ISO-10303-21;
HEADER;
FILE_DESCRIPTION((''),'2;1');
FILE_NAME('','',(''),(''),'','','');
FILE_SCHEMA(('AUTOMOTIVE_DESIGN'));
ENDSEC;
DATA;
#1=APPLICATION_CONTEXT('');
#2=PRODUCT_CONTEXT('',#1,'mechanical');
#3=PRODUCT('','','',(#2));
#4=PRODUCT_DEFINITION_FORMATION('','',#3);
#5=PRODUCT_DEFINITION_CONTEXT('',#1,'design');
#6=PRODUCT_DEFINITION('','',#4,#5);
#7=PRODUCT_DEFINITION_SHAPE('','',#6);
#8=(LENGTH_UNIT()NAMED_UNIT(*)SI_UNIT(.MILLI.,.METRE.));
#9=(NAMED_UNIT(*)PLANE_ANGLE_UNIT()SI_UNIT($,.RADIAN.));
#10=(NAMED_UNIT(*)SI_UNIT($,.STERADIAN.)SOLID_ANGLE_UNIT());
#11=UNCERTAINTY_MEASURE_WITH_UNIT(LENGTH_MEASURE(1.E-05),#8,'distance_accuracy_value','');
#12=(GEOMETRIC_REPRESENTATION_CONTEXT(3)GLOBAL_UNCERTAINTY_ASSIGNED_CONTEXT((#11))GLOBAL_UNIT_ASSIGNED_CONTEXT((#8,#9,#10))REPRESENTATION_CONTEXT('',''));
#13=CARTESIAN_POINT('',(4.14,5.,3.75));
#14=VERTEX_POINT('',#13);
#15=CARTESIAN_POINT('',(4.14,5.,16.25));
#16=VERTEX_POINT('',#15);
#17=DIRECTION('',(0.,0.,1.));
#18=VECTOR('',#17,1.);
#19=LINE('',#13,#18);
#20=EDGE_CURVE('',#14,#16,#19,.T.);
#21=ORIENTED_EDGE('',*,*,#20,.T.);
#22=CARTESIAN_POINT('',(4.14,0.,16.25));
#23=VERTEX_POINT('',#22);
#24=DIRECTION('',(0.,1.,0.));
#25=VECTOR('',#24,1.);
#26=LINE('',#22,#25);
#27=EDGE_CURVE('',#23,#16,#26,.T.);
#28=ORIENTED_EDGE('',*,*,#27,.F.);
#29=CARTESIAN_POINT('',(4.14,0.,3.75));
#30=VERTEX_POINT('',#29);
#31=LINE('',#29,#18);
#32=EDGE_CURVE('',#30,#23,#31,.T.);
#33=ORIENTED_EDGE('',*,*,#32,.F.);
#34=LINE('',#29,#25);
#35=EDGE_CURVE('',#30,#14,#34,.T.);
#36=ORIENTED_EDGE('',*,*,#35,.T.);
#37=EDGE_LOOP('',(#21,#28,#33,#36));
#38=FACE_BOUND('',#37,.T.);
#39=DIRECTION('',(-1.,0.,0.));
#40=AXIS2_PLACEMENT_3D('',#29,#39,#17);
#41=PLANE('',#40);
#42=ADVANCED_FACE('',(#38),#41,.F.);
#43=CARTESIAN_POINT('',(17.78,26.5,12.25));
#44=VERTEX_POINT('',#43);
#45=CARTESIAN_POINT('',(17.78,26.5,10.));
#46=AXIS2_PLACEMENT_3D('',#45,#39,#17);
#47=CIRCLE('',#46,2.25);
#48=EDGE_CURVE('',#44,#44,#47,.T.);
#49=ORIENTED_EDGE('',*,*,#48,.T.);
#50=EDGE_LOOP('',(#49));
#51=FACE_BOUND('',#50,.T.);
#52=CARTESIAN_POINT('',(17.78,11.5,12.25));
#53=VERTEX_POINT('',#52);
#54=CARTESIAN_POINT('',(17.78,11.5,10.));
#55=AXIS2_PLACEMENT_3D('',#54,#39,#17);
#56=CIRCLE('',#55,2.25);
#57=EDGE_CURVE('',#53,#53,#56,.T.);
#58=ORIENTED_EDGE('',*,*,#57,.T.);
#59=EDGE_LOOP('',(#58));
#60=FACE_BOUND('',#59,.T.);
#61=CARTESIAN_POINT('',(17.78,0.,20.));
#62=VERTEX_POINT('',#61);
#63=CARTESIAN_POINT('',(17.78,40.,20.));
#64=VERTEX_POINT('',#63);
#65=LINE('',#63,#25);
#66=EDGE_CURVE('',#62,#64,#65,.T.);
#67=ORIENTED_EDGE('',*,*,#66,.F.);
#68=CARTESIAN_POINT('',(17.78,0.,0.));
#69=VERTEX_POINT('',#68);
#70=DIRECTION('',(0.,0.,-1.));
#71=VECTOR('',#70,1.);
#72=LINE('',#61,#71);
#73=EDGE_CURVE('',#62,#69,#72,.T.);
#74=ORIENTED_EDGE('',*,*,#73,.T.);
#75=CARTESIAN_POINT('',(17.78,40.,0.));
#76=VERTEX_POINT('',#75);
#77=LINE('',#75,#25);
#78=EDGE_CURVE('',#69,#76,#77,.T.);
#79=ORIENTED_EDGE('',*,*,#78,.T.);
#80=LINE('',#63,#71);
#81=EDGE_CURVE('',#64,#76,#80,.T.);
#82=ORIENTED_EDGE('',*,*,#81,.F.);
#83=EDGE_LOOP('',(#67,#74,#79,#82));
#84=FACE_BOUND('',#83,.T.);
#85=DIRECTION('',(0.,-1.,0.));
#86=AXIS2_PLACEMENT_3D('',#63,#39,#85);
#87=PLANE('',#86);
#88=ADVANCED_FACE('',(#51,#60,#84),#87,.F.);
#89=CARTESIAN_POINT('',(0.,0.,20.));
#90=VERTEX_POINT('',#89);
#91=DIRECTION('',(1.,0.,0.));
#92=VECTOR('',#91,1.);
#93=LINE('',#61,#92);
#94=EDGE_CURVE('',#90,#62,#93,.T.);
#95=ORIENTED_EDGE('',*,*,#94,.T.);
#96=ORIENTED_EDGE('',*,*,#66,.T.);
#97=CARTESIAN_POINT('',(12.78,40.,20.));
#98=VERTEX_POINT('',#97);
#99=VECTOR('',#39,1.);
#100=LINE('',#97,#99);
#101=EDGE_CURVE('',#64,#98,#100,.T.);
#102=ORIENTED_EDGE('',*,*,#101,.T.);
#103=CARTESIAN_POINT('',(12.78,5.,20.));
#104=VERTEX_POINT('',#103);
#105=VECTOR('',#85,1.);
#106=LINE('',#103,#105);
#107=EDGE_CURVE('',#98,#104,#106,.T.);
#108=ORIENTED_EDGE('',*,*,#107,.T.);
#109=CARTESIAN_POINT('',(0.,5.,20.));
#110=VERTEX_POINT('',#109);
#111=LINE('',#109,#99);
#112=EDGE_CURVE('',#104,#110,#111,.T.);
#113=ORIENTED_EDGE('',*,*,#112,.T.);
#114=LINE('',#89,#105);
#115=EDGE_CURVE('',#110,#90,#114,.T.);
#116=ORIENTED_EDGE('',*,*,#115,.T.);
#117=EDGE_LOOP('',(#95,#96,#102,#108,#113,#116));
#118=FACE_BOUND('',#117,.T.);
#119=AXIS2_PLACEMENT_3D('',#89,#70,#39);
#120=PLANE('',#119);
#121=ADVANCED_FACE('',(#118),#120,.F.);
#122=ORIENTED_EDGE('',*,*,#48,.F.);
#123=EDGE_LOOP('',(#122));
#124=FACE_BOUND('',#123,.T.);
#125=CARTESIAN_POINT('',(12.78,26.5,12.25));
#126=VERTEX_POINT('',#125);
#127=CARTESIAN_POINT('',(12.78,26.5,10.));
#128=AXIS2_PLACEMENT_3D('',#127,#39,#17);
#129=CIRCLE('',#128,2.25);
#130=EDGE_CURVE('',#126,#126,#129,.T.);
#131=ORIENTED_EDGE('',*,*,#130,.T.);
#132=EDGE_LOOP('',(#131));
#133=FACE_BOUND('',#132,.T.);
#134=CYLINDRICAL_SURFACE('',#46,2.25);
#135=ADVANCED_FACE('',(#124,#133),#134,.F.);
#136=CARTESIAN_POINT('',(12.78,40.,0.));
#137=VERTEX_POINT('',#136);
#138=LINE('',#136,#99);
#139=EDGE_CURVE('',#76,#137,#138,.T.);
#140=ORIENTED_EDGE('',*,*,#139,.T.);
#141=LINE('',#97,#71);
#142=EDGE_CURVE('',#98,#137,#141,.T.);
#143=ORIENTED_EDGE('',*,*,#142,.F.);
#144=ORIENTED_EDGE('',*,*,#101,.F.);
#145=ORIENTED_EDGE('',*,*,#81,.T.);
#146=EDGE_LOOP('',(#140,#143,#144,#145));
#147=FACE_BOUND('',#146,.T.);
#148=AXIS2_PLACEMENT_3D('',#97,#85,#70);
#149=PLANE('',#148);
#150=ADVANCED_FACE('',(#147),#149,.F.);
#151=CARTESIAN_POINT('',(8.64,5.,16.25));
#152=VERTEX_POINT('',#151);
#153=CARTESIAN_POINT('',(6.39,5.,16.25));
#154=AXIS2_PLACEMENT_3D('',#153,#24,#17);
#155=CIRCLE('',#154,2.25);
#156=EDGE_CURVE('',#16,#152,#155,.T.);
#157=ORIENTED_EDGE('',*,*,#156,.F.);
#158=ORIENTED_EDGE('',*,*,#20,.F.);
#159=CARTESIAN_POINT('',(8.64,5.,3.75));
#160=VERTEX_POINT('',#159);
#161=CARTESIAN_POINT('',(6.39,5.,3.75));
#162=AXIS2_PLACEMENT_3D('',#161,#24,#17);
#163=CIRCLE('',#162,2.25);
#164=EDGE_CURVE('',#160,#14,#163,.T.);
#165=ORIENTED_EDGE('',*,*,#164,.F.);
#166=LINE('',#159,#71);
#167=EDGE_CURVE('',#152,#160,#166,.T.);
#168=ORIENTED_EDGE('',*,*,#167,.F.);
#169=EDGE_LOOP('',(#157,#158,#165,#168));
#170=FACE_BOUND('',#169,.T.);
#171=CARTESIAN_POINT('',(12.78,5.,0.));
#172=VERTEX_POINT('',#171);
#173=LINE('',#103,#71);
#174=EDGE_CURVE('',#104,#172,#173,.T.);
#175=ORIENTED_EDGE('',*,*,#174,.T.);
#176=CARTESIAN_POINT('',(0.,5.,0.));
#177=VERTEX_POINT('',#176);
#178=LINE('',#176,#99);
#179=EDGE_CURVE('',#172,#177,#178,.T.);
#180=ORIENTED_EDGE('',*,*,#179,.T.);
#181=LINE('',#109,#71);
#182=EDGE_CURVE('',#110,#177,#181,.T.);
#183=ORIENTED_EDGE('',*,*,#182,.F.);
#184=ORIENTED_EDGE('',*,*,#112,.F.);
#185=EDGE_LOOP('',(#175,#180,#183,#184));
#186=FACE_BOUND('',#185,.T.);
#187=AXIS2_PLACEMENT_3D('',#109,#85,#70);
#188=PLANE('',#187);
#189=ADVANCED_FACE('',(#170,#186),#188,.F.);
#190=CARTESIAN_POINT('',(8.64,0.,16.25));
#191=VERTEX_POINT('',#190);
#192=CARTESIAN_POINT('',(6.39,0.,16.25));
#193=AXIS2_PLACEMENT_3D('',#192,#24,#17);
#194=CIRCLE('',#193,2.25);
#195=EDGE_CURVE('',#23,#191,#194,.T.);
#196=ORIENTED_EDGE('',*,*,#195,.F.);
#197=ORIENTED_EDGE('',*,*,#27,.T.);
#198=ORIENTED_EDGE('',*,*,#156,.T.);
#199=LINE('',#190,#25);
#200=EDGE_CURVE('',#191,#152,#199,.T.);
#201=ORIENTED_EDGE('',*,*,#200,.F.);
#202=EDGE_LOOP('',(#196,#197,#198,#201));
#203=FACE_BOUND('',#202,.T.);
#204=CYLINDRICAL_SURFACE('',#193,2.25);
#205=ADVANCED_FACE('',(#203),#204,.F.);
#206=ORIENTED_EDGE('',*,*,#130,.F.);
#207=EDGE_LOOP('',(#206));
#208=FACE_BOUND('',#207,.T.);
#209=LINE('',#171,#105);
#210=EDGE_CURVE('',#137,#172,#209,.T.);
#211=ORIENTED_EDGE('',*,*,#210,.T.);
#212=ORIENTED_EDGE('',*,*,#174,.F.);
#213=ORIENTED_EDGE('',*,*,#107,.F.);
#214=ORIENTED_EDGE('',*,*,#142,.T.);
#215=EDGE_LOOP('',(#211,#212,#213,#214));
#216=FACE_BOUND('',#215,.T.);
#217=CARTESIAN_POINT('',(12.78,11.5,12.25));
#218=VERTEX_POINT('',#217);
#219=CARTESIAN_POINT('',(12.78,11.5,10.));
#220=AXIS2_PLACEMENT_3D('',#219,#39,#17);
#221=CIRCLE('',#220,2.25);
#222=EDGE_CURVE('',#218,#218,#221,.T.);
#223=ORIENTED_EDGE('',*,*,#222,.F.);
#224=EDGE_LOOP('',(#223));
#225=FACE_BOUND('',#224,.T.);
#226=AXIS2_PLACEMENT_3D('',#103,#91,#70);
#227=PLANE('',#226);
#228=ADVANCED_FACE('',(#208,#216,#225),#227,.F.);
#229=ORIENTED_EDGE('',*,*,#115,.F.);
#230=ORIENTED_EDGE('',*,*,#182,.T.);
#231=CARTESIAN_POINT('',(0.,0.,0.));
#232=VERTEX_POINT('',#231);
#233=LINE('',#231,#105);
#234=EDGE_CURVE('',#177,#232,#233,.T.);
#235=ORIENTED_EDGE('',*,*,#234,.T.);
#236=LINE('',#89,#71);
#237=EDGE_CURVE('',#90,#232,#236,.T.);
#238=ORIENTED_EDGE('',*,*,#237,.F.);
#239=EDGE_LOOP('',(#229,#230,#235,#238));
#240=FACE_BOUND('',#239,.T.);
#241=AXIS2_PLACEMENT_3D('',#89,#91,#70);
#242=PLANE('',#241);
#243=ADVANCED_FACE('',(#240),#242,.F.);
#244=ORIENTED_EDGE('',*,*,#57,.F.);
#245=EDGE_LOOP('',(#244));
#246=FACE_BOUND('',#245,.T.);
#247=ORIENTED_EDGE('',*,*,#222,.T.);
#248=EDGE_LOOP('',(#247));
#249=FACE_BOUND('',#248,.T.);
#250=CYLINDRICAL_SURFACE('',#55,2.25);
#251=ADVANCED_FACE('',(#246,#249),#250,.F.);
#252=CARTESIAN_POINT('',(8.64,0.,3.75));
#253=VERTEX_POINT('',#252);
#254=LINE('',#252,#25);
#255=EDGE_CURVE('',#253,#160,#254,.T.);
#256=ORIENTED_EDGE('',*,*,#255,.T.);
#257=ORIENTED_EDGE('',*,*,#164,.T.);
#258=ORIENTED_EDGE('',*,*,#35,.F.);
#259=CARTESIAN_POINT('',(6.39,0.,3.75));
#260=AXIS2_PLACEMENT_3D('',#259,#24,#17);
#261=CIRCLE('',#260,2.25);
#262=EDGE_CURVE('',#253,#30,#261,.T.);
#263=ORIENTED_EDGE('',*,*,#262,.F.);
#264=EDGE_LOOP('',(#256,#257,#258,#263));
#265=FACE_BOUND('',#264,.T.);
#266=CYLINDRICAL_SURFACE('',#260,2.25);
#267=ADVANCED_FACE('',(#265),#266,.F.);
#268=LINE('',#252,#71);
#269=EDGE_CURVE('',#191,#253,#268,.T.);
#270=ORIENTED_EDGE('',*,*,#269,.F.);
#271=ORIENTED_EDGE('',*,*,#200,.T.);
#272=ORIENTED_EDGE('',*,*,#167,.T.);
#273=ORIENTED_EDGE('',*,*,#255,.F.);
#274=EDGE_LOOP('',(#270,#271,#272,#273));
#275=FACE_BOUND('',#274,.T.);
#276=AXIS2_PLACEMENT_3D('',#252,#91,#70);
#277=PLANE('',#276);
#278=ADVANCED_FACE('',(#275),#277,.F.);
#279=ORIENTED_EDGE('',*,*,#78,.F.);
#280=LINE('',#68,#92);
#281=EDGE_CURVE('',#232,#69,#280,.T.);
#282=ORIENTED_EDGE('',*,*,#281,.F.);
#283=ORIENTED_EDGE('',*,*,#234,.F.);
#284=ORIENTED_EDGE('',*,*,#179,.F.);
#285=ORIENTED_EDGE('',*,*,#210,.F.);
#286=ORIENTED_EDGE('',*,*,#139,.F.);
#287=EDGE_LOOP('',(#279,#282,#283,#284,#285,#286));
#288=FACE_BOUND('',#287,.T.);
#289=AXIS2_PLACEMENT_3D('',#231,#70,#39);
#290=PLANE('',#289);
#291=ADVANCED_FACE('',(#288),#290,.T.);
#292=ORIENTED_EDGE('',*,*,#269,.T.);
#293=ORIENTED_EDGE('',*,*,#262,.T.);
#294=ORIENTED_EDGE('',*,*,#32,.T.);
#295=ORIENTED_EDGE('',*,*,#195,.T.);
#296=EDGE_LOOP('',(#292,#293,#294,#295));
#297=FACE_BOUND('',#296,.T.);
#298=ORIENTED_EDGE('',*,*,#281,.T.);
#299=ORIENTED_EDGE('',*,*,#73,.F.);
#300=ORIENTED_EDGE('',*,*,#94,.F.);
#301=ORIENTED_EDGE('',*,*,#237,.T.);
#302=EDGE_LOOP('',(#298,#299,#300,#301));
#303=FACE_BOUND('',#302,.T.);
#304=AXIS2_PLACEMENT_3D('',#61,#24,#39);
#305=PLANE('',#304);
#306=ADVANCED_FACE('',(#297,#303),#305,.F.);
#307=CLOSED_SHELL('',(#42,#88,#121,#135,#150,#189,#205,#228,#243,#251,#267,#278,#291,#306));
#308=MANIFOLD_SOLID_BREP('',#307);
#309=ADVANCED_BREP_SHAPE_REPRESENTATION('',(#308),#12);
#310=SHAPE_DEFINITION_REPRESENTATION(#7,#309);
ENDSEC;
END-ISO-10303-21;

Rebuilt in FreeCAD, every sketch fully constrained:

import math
import FreeCAD as App
import Part
import Sketcher
from FreeCAD import Vector

doc = App.newDocument("Part")
body = doc.addObject("PartDesign::Body", "Body")

# Sketch on XY plane
sketch1 = doc.addObject("Sketcher::SketchObject", "Sketch")
body.addObject(sketch1)
sketch1.AttachmentSupport = (doc.XY_Plane, [""])
sketch1.MapMode = "FlatFace"
sketch1.addGeometry(Part.LineSegment(Vector(0, 5, 0), Vector(0, 0, 0)), False)
sketch1.addGeometry(Part.LineSegment(Vector(0, 0, 0), Vector(18, 0, 0)), False)
sketch1.addGeometry(Part.LineSegment(Vector(18, 0, 0), Vector(18, 40, 0)), False)
sketch1.addGeometry(Part.LineSegment(Vector(18, 40, 0), Vector(13, 40, 0)), False)
sketch1.addGeometry(Part.LineSegment(Vector(13, 40, 0), Vector(13, 5, 0)), False)
sketch1.addGeometry(Part.LineSegment(Vector(13, 5, 0), Vector(0, 5, 0)), False)
sketch1.addConstraint(Sketcher.Constraint("Coincident", 0, 2, 1, 1))
sketch1.addConstraint(Sketcher.Constraint("Coincident", 1, 2, 2, 1))
sketch1.addConstraint(Sketcher.Constraint("Coincident", 2, 2, 3, 1))
sketch1.addConstraint(Sketcher.Constraint("Coincident", 3, 2, 4, 1))
sketch1.addConstraint(Sketcher.Constraint("Coincident", 4, 2, 5, 1))
sketch1.addConstraint(Sketcher.Constraint("Coincident", 5, 2, 0, 1))
sketch1.addConstraint(Sketcher.Constraint("Vertical", 0))
sketch1.addConstraint(Sketcher.Constraint("Horizontal", 1))
sketch1.addConstraint(Sketcher.Constraint("Vertical", 2))
sketch1.addConstraint(Sketcher.Constraint("Horizontal", 3))
sketch1.addConstraint(Sketcher.Constraint("Vertical", 4))
sketch1.addConstraint(Sketcher.Constraint("Horizontal", 5))
sketch1.addConstraint(Sketcher.Constraint("Coincident", 0, 2, -1, 1))
sketch1.addConstraint(Sketcher.Constraint("Equal", 3, 0))
sketch1.addConstraint(Sketcher.Constraint("DistanceX", 3, 2, 3, 1, 5.0))
sketch1.addConstraint(Sketcher.Constraint("DistanceY", 2, 1, 2, 2, 40.0))
sketch1.addConstraint(Sketcher.Constraint("DistanceX", 1, 1, 1, 2, 17.78))
pad1 = doc.addObject("PartDesign::Pad", "Pad")
body.addObject(pad1)
pad1.Profile = sketch1
pad1.Length = 20

# Sketch on XZ plane
sketch2 = doc.addObject("Sketcher::SketchObject", "Sketch001")
body.addObject(sketch2)
sketch2.AttachmentSupport = (doc.XZ_Plane, [""])
sketch2.MapMode = "FlatFace"
sketch2.AttachmentOffset = App.Placement(Vector(0, 0, -5), App.Rotation())
sketch2.addGeometry(Part.LineSegment(Vector(8.6, 16.2, 0), Vector(8.6, 3.8, 0)), False)
sketch2.addGeometry(Part.ArcOfCircle(Part.Circle(Vector(6.4, 3.8, 0), Vector(0, 0, 1), 2.2), math.radians(180), math.radians(360)), False)
sketch2.addGeometry(Part.LineSegment(Vector(4.1, 3.8, 0), Vector(4.1, 16.2, 0)), False)
sketch2.addGeometry(Part.ArcOfCircle(Part.Circle(Vector(6.4, 16.2, 0), Vector(0, 0, 1), 2.2), math.radians(0), math.radians(180)), False)
sketch2.addConstraint(Sketcher.Constraint("Tangent", 0, 2, 1, 2))
sketch2.addConstraint(Sketcher.Constraint("Tangent", 1, 1, 2, 1))
sketch2.addConstraint(Sketcher.Constraint("Tangent", 2, 2, 3, 2))
sketch2.addConstraint(Sketcher.Constraint("Tangent", 3, 1, 0, 1))
sketch2.addConstraint(Sketcher.Constraint("Vertical", 0))
sketch2.addConstraint(Sketcher.Constraint("Vertical", 2))
sketch2.addConstraint(Sketcher.Constraint("Radius", 1, 2.25))
sketch2.addConstraint(Sketcher.Constraint("DistanceY", 0, 2, 0, 1, 12.5))
sketch2.addConstraint(Sketcher.Constraint("DistanceX", -1, 1, 1, 3, 6.39))
sketch2.addConstraint(Sketcher.Constraint("DistanceY", -1, 1, 1, 3, 3.75))
pocket1 = doc.addObject("PartDesign::Pocket", "Pocket")
body.addObject(pocket1)
pocket1.Profile = sketch2
pocket1.Type = "ThroughAll"
pocket1.Reversed = True

# Sketch on YZ plane
sketch3 = doc.addObject("Sketcher::SketchObject", "Sketch002")
body.addObject(sketch3)
sketch3.AttachmentSupport = (doc.YZ_Plane, [""])
sketch3.MapMode = "FlatFace"
sketch3.AttachmentOffset = App.Placement(Vector(0, 0, 12.78), App.Rotation())
sketch3.addGeometry(Part.Circle(Vector(26.5, 10, 0), Vector(0, 0, 1), 2.2), False)
sketch3.addGeometry(Part.Circle(Vector(11.5, 10, 0), Vector(0, 0, 1), 2.2), False)
sketch3.addConstraint(Sketcher.Constraint("Equal", 0, 1))
sketch3.addConstraint(Sketcher.Constraint("Horizontal", 0, 3, 1, 3))
sketch3.addConstraint(Sketcher.Constraint("Diameter", 0, 4.5))
sketch3.addConstraint(Sketcher.Constraint("DistanceY", -1, 1, 0, 3, 10.0))
sketch3.addConstraint(Sketcher.Constraint("DistanceX", 1, 3, 0, 3, 15.0))
sketch3.addConstraint(Sketcher.Constraint("DistanceX", -1, 1, 0, 3, 26.5))
pocket2 = doc.addObject("PartDesign::Pocket", "Pocket001")
body.addObject(pocket2)
pocket2.Profile = sketch3
pocket2.Type = "ThroughAll"
pocket2.Reversed = True

doc.recompute()
